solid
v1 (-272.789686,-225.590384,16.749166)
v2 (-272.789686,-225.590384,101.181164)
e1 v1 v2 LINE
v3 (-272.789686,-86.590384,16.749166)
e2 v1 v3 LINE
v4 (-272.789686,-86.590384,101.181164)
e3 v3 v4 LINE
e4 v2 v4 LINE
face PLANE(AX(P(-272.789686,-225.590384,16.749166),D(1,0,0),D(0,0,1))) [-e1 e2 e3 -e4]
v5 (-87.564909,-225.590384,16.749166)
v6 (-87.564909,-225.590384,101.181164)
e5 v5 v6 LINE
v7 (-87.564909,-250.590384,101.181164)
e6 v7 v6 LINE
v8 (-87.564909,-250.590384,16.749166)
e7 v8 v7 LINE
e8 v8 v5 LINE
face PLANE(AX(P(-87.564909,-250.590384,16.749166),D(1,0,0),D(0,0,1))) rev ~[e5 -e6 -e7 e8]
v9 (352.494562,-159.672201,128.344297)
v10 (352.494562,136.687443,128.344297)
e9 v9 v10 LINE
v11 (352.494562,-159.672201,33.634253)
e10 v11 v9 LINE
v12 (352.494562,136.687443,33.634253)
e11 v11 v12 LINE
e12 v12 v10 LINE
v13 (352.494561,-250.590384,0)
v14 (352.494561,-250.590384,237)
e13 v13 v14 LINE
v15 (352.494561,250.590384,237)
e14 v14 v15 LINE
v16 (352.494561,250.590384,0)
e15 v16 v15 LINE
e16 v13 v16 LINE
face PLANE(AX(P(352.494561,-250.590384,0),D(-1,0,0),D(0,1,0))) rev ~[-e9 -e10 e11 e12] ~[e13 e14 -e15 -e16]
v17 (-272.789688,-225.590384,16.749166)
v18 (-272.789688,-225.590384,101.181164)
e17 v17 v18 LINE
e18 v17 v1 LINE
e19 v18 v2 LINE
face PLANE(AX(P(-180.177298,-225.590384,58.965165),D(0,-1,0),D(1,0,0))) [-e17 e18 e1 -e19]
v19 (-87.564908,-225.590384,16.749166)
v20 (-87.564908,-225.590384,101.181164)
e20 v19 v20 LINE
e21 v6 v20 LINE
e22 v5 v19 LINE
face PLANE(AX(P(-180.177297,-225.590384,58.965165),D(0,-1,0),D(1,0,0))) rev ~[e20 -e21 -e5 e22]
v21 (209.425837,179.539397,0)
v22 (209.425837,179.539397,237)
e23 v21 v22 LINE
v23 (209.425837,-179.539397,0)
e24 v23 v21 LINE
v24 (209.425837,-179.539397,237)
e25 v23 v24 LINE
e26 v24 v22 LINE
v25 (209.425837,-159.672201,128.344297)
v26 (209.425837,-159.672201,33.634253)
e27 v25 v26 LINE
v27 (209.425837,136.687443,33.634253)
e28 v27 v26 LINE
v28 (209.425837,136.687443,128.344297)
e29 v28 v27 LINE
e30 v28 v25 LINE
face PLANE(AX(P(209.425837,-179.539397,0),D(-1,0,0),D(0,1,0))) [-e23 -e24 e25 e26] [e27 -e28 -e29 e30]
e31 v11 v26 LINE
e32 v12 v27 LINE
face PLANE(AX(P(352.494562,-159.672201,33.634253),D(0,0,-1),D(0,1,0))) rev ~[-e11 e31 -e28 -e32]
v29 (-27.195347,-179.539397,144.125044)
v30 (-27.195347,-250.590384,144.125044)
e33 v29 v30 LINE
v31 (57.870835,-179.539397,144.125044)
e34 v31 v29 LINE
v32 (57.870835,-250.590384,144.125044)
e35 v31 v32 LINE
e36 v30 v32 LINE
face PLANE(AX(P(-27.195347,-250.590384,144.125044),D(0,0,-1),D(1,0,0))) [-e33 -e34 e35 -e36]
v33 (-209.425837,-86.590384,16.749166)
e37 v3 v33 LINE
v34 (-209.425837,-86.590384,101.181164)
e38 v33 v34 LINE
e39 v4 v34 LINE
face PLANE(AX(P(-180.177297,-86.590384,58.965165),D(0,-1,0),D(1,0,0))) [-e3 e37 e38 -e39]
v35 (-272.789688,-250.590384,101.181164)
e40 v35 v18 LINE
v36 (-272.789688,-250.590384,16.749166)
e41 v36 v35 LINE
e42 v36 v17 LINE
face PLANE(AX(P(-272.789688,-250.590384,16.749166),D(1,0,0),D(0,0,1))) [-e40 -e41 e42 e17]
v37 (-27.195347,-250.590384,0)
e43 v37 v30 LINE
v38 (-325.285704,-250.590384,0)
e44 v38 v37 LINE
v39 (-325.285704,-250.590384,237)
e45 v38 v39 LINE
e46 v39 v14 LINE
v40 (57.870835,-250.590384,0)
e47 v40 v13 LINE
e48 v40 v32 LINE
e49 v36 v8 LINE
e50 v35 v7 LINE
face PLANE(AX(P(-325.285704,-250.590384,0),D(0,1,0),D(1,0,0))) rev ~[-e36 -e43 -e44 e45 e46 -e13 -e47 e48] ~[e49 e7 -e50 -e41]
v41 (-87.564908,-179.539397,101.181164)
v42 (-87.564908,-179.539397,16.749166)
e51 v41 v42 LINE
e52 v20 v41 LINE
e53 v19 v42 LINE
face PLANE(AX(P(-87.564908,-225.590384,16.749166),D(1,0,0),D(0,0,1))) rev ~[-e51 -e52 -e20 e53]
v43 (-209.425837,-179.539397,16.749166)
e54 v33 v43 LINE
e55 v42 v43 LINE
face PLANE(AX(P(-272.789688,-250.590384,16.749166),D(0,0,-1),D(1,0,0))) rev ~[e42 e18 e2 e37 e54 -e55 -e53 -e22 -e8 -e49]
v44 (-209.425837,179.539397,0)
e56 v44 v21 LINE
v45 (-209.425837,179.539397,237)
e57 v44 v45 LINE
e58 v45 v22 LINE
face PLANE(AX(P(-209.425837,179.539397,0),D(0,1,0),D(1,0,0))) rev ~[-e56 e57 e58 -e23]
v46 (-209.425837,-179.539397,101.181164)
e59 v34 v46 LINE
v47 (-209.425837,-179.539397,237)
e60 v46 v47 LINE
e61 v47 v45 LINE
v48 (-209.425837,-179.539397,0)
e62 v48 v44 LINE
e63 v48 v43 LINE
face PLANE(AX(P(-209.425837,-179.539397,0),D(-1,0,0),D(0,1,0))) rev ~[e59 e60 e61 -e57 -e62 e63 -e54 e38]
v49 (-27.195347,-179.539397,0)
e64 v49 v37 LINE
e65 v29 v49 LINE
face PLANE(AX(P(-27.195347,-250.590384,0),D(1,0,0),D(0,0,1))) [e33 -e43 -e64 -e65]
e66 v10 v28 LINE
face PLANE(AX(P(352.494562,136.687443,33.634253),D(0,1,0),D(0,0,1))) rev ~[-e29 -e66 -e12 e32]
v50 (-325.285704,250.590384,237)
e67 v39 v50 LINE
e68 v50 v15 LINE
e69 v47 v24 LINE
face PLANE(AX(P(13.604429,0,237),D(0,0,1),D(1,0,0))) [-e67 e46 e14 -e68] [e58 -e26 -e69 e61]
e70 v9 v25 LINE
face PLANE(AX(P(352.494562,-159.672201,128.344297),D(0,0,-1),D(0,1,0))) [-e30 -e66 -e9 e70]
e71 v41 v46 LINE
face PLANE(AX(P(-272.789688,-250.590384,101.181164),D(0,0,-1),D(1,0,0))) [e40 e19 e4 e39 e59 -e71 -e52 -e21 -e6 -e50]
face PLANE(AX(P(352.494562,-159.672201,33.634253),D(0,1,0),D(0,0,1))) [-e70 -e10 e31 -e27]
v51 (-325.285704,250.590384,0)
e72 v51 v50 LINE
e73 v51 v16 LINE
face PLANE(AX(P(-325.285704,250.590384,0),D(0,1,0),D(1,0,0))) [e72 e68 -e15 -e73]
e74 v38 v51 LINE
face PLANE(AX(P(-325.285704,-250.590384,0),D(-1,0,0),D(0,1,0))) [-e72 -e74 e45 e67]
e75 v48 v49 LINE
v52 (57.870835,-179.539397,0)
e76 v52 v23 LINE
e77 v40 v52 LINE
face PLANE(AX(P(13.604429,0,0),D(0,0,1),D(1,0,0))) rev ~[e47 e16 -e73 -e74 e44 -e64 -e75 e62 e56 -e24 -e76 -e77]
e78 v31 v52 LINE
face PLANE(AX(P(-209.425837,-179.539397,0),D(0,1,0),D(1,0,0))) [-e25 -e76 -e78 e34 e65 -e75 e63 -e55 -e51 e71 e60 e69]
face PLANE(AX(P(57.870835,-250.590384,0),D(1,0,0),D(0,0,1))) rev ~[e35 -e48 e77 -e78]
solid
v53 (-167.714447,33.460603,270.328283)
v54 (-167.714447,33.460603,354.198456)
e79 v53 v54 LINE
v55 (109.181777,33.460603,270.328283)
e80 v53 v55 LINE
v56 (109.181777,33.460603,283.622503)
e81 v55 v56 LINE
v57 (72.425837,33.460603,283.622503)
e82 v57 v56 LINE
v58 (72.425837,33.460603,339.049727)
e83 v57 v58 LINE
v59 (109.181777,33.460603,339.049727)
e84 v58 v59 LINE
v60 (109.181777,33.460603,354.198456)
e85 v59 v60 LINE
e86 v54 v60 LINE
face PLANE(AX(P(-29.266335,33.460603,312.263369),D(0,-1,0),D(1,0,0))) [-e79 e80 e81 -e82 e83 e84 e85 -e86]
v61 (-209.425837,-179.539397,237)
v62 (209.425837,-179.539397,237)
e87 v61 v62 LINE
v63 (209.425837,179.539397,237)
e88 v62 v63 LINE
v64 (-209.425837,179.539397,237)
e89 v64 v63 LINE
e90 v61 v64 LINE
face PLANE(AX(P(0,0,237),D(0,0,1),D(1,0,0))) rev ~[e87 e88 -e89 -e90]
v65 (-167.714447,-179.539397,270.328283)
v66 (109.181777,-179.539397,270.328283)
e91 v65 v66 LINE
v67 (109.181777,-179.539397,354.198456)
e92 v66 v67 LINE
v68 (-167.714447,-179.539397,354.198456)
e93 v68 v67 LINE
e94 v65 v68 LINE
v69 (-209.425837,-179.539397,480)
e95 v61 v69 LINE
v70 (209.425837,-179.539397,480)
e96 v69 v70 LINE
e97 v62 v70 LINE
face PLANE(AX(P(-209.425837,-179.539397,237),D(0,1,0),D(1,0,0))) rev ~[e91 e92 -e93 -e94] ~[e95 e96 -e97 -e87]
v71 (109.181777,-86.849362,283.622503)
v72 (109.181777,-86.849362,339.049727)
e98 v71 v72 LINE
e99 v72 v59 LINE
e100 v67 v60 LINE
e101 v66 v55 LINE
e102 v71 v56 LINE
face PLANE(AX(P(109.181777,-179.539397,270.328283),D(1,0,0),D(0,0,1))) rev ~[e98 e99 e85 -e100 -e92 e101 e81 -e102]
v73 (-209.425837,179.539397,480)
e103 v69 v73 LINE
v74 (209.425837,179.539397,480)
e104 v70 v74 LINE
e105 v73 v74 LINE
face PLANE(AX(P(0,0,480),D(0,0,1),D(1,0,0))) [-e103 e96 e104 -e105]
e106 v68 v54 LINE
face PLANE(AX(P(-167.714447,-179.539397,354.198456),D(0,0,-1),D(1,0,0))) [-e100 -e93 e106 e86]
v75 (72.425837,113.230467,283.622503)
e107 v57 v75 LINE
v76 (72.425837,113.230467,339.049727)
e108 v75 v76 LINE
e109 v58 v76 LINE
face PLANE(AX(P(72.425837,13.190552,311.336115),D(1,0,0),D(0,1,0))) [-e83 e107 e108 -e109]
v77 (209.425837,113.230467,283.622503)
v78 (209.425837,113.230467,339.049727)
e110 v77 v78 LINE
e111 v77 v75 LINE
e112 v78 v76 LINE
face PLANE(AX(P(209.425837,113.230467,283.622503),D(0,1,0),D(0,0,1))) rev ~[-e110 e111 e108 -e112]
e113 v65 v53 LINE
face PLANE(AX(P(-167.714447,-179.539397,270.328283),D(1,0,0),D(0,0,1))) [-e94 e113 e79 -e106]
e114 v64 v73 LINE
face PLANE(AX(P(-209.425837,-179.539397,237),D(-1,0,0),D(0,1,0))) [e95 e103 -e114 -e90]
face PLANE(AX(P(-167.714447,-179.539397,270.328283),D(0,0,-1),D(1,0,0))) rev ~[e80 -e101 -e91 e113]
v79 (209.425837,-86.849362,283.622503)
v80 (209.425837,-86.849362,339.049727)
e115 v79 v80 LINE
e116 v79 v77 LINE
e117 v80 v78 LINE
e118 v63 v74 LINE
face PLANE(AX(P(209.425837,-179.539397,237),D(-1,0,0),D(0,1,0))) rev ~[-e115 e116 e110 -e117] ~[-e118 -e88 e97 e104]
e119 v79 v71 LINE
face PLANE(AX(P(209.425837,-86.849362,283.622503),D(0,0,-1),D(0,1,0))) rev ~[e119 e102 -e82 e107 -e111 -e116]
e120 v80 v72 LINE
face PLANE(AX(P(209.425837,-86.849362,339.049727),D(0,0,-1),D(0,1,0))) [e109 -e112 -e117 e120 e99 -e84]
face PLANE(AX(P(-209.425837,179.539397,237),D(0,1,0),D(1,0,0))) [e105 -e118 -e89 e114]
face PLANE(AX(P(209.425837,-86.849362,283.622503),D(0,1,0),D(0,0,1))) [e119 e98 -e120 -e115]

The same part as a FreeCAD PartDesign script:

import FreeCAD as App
import Part
import Sketcher
from FreeCAD import Vector
Q = App.Units.Quantity


def add_polygon(sketch, points):
    """Adds a closed chain of lines whose ends are joined by coincident constraints."""
    first, n = sketch.GeometryCount, len(points)
    for a, b in zip(points, points[1:] + points[:1]):
        sketch.addGeometry(Part.LineSegment(App.Vector(*a, 0), App.Vector(*b, 0)), False)
    for i in range(n):
        sketch.addConstraint(Sketcher.Constraint("Coincident", first + i, 2, first + (i + 1) % n, 1))

doc = App.newDocument("Part")
body = doc.addObject("PartDesign::Body", "Body")

# Sketch on XY plane
sketch1 = doc.addObject("Sketcher::SketchObject", "Sketch")
body.addObject(sketch1)
sketch1.AttachmentSupport = (doc.XY_Plane, [""])
sketch1.MapMode = "FlatFace"
add_polygon(sketch1, [(-325, 251), (-325, -251), (352, -251), (352, 251)])  # lines 0-3
add_polygon(sketch1, [(209, -180), (-209, -180), (-209, 180), (209, 180)])  # lines 4-7
sketch1.addConstraint([
    Sketcher.Constraint("Vertical", 0),
    Sketcher.Constraint("Horizontal", 1),
    Sketcher.Constraint("Vertical", 2),
    Sketcher.Constraint("Horizontal", 3),
    Sketcher.Constraint("Horizontal", 4),
    Sketcher.Constraint("Vertical", 5),
    Sketcher.Constraint("Horizontal", 6),
    Sketcher.Constraint("Vertical", 7),
    Sketcher.Constraint("Symmetric", 4, 2, 6, 2, -1, 1),
    Sketcher.Constraint("DistanceY", 0, 2, 0, 1, Q("501.180768 mm")),
    Sketcher.Constraint("DistanceX", 4, 2, 1, 2, Q("561.920398 mm")),
    Sketcher.Constraint("DistanceX", 1, 1, 1, 2, Q("677.780265 mm")),
    Sketcher.Constraint("DistanceX", 4, 2, 4, 1, Q("418.851674 mm")),
    Sketcher.Constraint("DistanceY", 5, 1, 5, 2, Q("359.078794 mm")),
    Sketcher.Constraint("DistanceY", 4, 2, 3, 2, Q("430.129781 mm")),
])
pad1 = doc.addObject("PartDesign::Pad", "Pad")
body.addObject(pad1)
pad1.Profile = sketch1
pad1.Length = 237

# Sketch on XZ plane
sketch2 = doc.addObject("Sketcher::SketchObject", "Sketch001")
body.addObject(sketch2)
sketch2.AttachmentSupport = (doc.XZ_Plane, [""])
sketch2.MapMode = "FlatFace"
sketch2.AttachmentOffset = App.Placement(Vector(0, 0, 250.590384), App.Rotation())
add_polygon(sketch2, [(-27, 144), (-27, 0), (58, 0), (58, 144)])  # lines 0-3
sketch2.addConstraint([
    Sketcher.Constraint("Vertical", 0),
    Sketcher.Constraint("Horizontal", 1),
    Sketcher.Constraint("Vertical", 2),
    Sketcher.Constraint("Horizontal", 3),
    Sketcher.Constraint("PointOnObject", 0, 2, -1),
    Sketcher.Constraint("DistanceX", 1, 1, 1, 2, Q("85.066182 mm")),
    Sketcher.Constraint("DistanceY", 0, 2, 0, 1, Q("144.125044 mm")),
    Sketcher.Constraint("DistanceX", 0, 2, -1, 1, Q("27.195347 mm")),
])
pocket1 = doc.addObject("PartDesign::Pocket", "Pocket")
body.addObject(pocket1)
pocket1.Profile = sketch2
pocket1.Length = 154

# Sketch on XZ plane
sketch3 = doc.addObject("Sketcher::SketchObject", "Sketch002")
body.addObject(sketch3)
sketch3.AttachmentSupport = (doc.XZ_Plane, [""])
sketch3.MapMode = "FlatFace"
sketch3.AttachmentOffset = App.Placement(Vector(0, 0, 250.590384), App.Rotation())
add_polygon(sketch3, [(-27, 144), (-27, 0), (58, 0), (58, 144)])  # lines 0-3
add_polygon(sketch3, [(-273, 101), (-273, 17), (-88, 17), (-88, 101)])  # lines 4-7
sketch3.addConstraint([
    Sketcher.Constraint("Vertical", 0),
    Sketcher.Constraint("Horizontal", 1),
    Sketcher.Constraint("Vertical", 2),
    Sketcher.Constraint("Horizontal", 3),
    Sketcher.Constraint("Vertical", 4),
    Sketcher.Constraint("Horizontal", 5),
    Sketcher.Constraint("Vertical", 6),
    Sketcher.Constraint("Horizontal", 7),
    Sketcher.Constraint("PointOnObject", 0, 2, -1),
    Sketcher.Constraint("DistanceX", 1, 1, 1, 2, Q("85.066182 mm")),
    Sketcher.Constraint("DistanceX", 5, 1, 5, 2, Q("185.224779 mm")),
    Sketcher.Constraint("DistanceY", 0, 2, 0, 1, Q("144.125044 mm")),
    Sketcher.Constraint("DistanceY", 4, 2, 4, 1, Q("84.431998 mm")),
    Sketcher.Constraint("DistanceX", 5, 2, -1, 1, Q("87.564909 mm")),
    Sketcher.Constraint("DistanceX", 4, 2, 0, 2, Q("245.594341 mm")),
    Sketcher.Constraint("DistanceY", 4, 2, 3, 2, Q("127.375878 mm")),
])
pocket2 = doc.addObject("PartDesign::Pocket", "Pocket001")
body.addObject(pocket2)
pocket2.Profile = sketch3
pocket2.Length = 25

# Sketch on YZ plane
sketch4 = doc.addObject("Sketcher::SketchObject", "Sketch003")
body.addObject(sketch4)
sketch4.AttachmentSupport = (doc.YZ_Plane, [""])
sketch4.MapMode = "FlatFace"
sketch4.AttachmentOffset = App.Placement(Vector(0, 0, 352.494562), App.Rotation())
add_polygon(sketch4, [(-160, 128), (-160, 34), (137, 34), (137, 128)])  # lines 0-3
sketch4.addConstraint([
    Sketcher.Constraint("Vertical", 0),
    Sketcher.Constraint("Horizontal", 1),
    Sketcher.Constraint("Vertical", 2),
    Sketcher.Constraint("Horizontal", 3),
    Sketcher.Constraint("DistanceX", 0, 2, -1, 1, Q("159.672201 mm")),
    Sketcher.Constraint("DistanceX", 1, 1, 1, 2, Q("296.359644 mm")),
    Sketcher.Constraint("DistanceY", 0, 2, 0, 1, Q("94.710044 mm")),
    Sketcher.Constraint("DistanceY", -1, 1, 0, 2, Q("33.634253 mm")),
])
pocket3 = doc.addObject("PartDesign::Pocket", "Pocket002")
body.addObject(pocket3)
pocket3.Profile = sketch4
pocket3.Length = 381

# Sketch on XZ plane
sketch5 = doc.addObject("Sketcher::SketchObject", "Sketch004")
body.addObject(sketch5)
sketch5.AttachmentSupport = (doc.XZ_Plane, [""])
sketch5.MapMode = "FlatFace"
sketch5.AttachmentOffset = App.Placement(Vector(0, 0, 225.590384), App.Rotation())
add_polygon(sketch5, [(-273, 101), (-273, 17), (-88, 17), (-88, 101)])  # lines 0-3
sketch5.addConstraint([
    Sketcher.Constraint("Vertical", 0),
    Sketcher.Constraint("Horizontal", 1),
    Sketcher.Constraint("Vertical", 2),
    Sketcher.Constraint("Horizontal", 3),
    Sketcher.Constraint("DistanceX", 1, 1, 1, 2, Q("185.224778 mm")),
    Sketcher.Constraint("DistanceY", 0, 2, 0, 1, Q("84.431998 mm")),
    Sketcher.Constraint("DistanceX", 1, 2, -1, 1, Q("87.564908 mm")),
    Sketcher.Constraint("DistanceY", -1, 1, 0, 2, Q("16.749166 mm")),
])
pocket4 = doc.addObject("PartDesign::Pocket", "Pocket003")
body.addObject(pocket4)
pocket4.Profile = sketch5
pocket4.Length = 139
body2 = doc.addObject("PartDesign::Body", "Body001")

# Sketch on XY plane
sketch6 = doc.addObject("Sketcher::SketchObject", "Sketch005")
body2.addObject(sketch6)
sketch6.AttachmentSupport = (doc.getObject("XY_Plane001"), [""])
sketch6.MapMode = "FlatFace"
sketch6.AttachmentOffset = App.Placement(Vector(0, 0, 237), App.Rotation())
add_polygon(sketch6, [(-209, 180), (-209, -180), (209, -180), (209, 180)])  # lines 0-3
sketch6.addConstraint([
    Sketcher.Constraint("Vertical", 0),
    Sketcher.Constraint("Horizontal", 1),
    Sketcher.Constraint("Vertical", 2),
    Sketcher.Constraint("Horizontal", 3),
    Sketcher.Constraint("Symmetric", 0, 2, 2, 2, -1, 1),
    Sketcher.Constraint("DistanceX", 1, 1, 1, 2, Q("418.851674 mm")),
    Sketcher.Constraint("DistanceY", 0, 2, 0, 1, Q("359.078794 mm")),
])
pad2 = doc.addObject("PartDesign::Pad", "Pad001")
body2.addObject(pad2)
pad2.Profile = sketch6
pad2.Length = 243

# Sketch on XZ plane
sketch7 = doc.addObject("Sketcher::SketchObject", "Sketch006")
body2.addObject(sketch7)
sketch7.AttachmentSupport = (doc.getObject("XZ_Plane001"), [""])
sketch7.MapMode = "FlatFace"
sketch7.AttachmentOffset = App.Placement(Vector(0, 0, 179.539397), App.Rotation())
add_polygon(sketch7, [(-168, 354), (-168, 270), (109, 270), (109, 354)])  # lines 0-3
sketch7.addConstraint([
    Sketcher.Constraint("Vertical", 0),
    Sketcher.Constraint("Horizontal", 1),
    Sketcher.Constraint("Vertical", 2),
    Sketcher.Constraint("Horizontal", 3),
    Sketcher.Constraint("DistanceX", 1, 1, 1, 2, Q("276.896224 mm")),
    Sketcher.Constraint("DistanceY", 0, 2, 0, 1, Q("83.870173 mm")),
    Sketcher.Constraint("DistanceX", 0, 2, -1, 1, Q("167.714447 mm")),
    Sketcher.Constraint("DistanceY", -1, 1, 0, 2, Q("270.328283 mm")),
])
pocket5 = doc.addObject("PartDesign::Pocket", "Pocket004")
body2.addObject(pocket5)
pocket5.Profile = sketch7
pocket5.Length = 213

# Sketch on YZ plane
sketch8 = doc.addObject("Sketcher::SketchObject", "Sketch007")
body2.addObject(sketch8)
sketch8.AttachmentSupport = (doc.getObject("YZ_Plane001"), [""])
sketch8.MapMode = "FlatFace"
sketch8.AttachmentOffset = App.Placement(Vector(0, 0, 209.425837), App.Rotation())
add_polygon(sketch8, [(-87, 339), (-87, 284), (113, 284), (113, 339)])  # lines 0-3
sketch8.addConstraint([
    Sketcher.Constraint("Vertical", 0),
    Sketcher.Constraint("Horizontal", 1),
    Sketcher.Constraint("Vertical", 2),
    Sketcher.Constraint("Horizontal", 3),
    Sketcher.Constraint("DistanceX", 1, 1, 1, 2, Q("200.079829 mm")),
    Sketcher.Constraint("DistanceY", 0, 2, 0, 1, Q("55.427224 mm")),
    Sketcher.Constraint("DistanceX", 0, 2, -1, 1, Q("86.849362 mm")),
    Sketcher.Constraint("DistanceY", -1, 1, 0, 2, Q("283.622503 mm")),
])
pocket6 = doc.addObject("PartDesign::Pocket", "Pocket005")
body2.addObject(pocket6)
pocket6.Profile = sketch8
pocket6.Length = 137

doc.recompute()
